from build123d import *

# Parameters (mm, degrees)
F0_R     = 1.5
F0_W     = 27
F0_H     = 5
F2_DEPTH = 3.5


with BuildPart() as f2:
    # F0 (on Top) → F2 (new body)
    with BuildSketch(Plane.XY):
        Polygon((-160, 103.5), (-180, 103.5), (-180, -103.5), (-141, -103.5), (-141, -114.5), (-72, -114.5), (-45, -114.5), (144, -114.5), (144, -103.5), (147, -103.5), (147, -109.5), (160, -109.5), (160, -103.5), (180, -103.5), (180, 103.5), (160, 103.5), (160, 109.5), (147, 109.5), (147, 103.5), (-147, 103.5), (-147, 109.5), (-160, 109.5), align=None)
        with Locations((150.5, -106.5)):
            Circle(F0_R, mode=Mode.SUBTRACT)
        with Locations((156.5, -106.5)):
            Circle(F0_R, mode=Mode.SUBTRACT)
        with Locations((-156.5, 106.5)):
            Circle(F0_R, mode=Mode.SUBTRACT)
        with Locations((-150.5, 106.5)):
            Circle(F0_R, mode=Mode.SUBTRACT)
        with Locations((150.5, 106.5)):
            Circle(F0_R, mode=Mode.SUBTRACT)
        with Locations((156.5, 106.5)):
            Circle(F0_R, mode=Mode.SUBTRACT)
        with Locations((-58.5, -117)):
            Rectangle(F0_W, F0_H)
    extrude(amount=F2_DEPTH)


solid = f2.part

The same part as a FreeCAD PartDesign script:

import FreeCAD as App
import Part
import Sketcher
Q = App.Units.Quantity


def add_polygon(sketch, points):
    """Adds a closed chain of lines whose ends are joined by coincident constraints."""
    first, n = sketch.GeometryCount, len(points)
    for a, b in zip(points, points[1:] + points[:1]):
        sketch.addGeometry(Part.LineSegment(App.Vector(*a, 0), App.Vector(*b, 0)), False)
    for i in range(n):
        sketch.addConstraint(Sketcher.Constraint("Coincident", first + i, 2, first + (i + 1) % n, 1))

doc = App.newDocument("Part")
body = doc.addObject("PartDesign::Body", "Body")

# Sketch on XY plane
sketch1 = body.newObject("Sketcher::SketchObject", "Sketch")
sketch1.AttachmentSupport = (doc.getObject("XY_Plane"), [""])
sketch1.MapMode = "FlatFace"
add_polygon(sketch1, [(-160, 103.5), (-180, 103.5), (-180, -103.5), (-141, -103.5), (-141, -114.5), (-72, -114.5), (-72, -119.5), (-45, -119.5), (-45, -114.5), (144, -114.5), (144, -103.5), (147, -103.5), (147, -109.5), (160, -109.5), (160, -103.5), (180, -103.5), (180, 103.5), (160, 103.5), (160, 109.5), (147, 109.5), (147, 103.5), (-147, 103.5), (-147, 109.5), (-160, 109.5)])  # lines 0-23
sketch1.addGeometry(Part.Circle(App.Vector(150.5, -106.5, 0), App.Vector(0, 0, 1), 1.5), False)  # 24
sketch1.addGeometry(Part.Circle(App.Vector(156.5, -106.5, 0), App.Vector(0, 0, 1), 1.5), False)  # 25
sketch1.addGeometry(Part.Circle(App.Vector(-156.5, 106.5, 0), App.Vector(0, 0, 1), 1.5), False)  # 26
sketch1.addGeometry(Part.Circle(App.Vector(-150.5, 106.5, 0), App.Vector(0, 0, 1), 1.5), False)  # 27
sketch1.addGeometry(Part.Circle(App.Vector(150.5, 106.5, 0), App.Vector(0, 0, 1), 1.5), False)  # 28
sketch1.addGeometry(Part.Circle(App.Vector(156.5, 106.5, 0), App.Vector(0, 0, 1), 1.5), False)  # 29
sketch1.addConstraint(Sketcher.Constraint("Horizontal", 0))
sketch1.addConstraint(Sketcher.Constraint("Vertical", 1))
sketch1.addConstraint(Sketcher.Constraint("Horizontal", 2))
sketch1.addConstraint(Sketcher.Constraint("Vertical", 3))
sketch1.addConstraint(Sketcher.Constraint("Horizontal", 4))
sketch1.addConstraint(Sketcher.Constraint("Vertical", 5))
sketch1.addConstraint(Sketcher.Constraint("Horizontal", 6))
sketch1.addConstraint(Sketcher.Constraint("Vertical", 7))
sketch1.addConstraint(Sketcher.Constraint("Horizontal", 8))
sketch1.addConstraint(Sketcher.Constraint("Vertical", 9))
sketch1.addConstraint(Sketcher.Constraint("Horizontal", 10))
sketch1.addConstraint(Sketcher.Constraint("Vertical", 11))
sketch1.addConstraint(Sketcher.Constraint("Horizontal", 12))
sketch1.addConstraint(Sketcher.Constraint("Vertical", 13))
sketch1.addConstraint(Sketcher.Constraint("Horizontal", 14))
sketch1.addConstraint(Sketcher.Constraint("Vertical", 15))
sketch1.addConstraint(Sketcher.Constraint("Horizontal", 16))
sketch1.addConstraint(Sketcher.Constraint("Vertical", 17))
sketch1.addConstraint(Sketcher.Constraint("Horizontal", 18))
sketch1.addConstraint(Sketcher.Constraint("Vertical", 19))
sketch1.addConstraint(Sketcher.Constraint("Horizontal", 20))
sketch1.addConstraint(Sketcher.Constraint("Vertical", 21))
sketch1.addConstraint(Sketcher.Constraint("Horizontal", 22))
sketch1.addConstraint(Sketcher.Constraint("Vertical", 23))
sketch1.addConstraint(Sketcher.Constraint("Equal", 24, 25))
sketch1.addConstraint(Sketcher.Constraint("Equal", 25, 26))
sketch1.addConstraint(Sketcher.Constraint("Equal", 26, 27))
sketch1.addConstraint(Sketcher.Constraint("Equal", 27, 28))
sketch1.addConstraint(Sketcher.Constraint("Equal", 28, 29))
sketch1.addConstraint(Sketcher.Constraint("Symmetric", 25, 3, 26, 3, -1, 1))
sketch1.addConstraint(Sketcher.Constraint("Symmetric", 24, 3, 27, 3, -1, 1))
sketch1.addConstraint(Sketcher.Constraint("Symmetric", 0, 2, 14, 2, -1, 1))
sketch1.addConstraint(Sketcher.Constraint("Symmetric", 10, 2, 20, 2, -1, 1))
sketch1.addConstraint(Sketcher.Constraint("Symmetric", 12, 2, 22, 2, -1, 1))
sketch1.addConstraint(Sketcher.Constraint("Symmetric", 27, 3, 28, 3, -2))
sketch1.addConstraint(Sketcher.Constraint("Symmetric", 26, 3, 29, 3, -2))
sketch1.addConstraint(Sketcher.Constraint("Symmetric", 18, 2, 21, 2, -2))
sketch1.addConstraint(Sketcher.Constraint("Symmetric", 16, 2, 23, 2, -2))
sketch1.addConstraint(Sketcher.Constraint("Horizontal", 24, 3, 25, 3))
sketch1.addConstraint(Sketcher.Constraint("Horizontal", 4, 2, 7, 2))
sketch1.addConstraint(Sketcher.Constraint("Horizontal", 2, 2, 9, 2))
sketch1.addConstraint(Sketcher.Constraint("Horizontal", 10, 2, 13, 2))
sketch1.addConstraint(Sketcher.Constraint("Diameter", 24, Q("3 mm")))
sketch1.addConstraint(Sketcher.Constraint("DistanceX", 0, 2, 0, 1, Q("20 mm")))
sketch1.addConstraint(Sketcher.Constraint("DistanceX", 2, 1, 2, 2, Q("39 mm")))
sketch1.addConstraint(Sketcher.Constraint("DistanceX", 4, 1, 4, 2, Q("69 mm")))
sketch1.addConstraint(Sketcher.Constraint("DistanceX", 6, 1, 6, 2, Q("27 mm")))
sketch1.addConstraint(Sketcher.Constraint("DistanceX", 8, 1, 8, 2, Q("189 mm")))
sketch1.addConstraint(Sketcher.Constraint("DistanceX", 10, 1, 10, 2, Q("3 mm")))
sketch1.addConstraint(Sketcher.Constraint("DistanceX", 12, 1, 12, 2, Q("13 mm")))
sketch1.addConstraint(Sketcher.Constraint("DistanceY", 1, 2, 1, 1, Q("207 mm")))
sketch1.addConstraint(Sketcher.Constraint("DistanceY", 3, 2, 3, 1, Q("11 mm")))
sketch1.addConstraint(Sketcher.Constraint("DistanceY", 5, 2, 5, 1, Q("5 mm")))
sketch1.addConstraint(Sketcher.Constraint("DistanceY", 11, 2, 11, 1, Q("6 mm")))
sketch1.addConstraint(Sketcher.Constraint("DistanceX", 24, 3, 25, 3, Q("6 mm")))
sketch1.addConstraint(Sketcher.Constraint("DistanceX", 26, 3, 24, 3, Q("307 mm")))
sketch1.addConstraint(Sketcher.Constraint("DistanceY", 24, 3, 26, 3, Q("213 mm")))
pad1 = body.newObject("PartDesign::Pad", "Pad")
pad1.Profile = sketch1
pad1.Length = 3.5

doc.recompute()
